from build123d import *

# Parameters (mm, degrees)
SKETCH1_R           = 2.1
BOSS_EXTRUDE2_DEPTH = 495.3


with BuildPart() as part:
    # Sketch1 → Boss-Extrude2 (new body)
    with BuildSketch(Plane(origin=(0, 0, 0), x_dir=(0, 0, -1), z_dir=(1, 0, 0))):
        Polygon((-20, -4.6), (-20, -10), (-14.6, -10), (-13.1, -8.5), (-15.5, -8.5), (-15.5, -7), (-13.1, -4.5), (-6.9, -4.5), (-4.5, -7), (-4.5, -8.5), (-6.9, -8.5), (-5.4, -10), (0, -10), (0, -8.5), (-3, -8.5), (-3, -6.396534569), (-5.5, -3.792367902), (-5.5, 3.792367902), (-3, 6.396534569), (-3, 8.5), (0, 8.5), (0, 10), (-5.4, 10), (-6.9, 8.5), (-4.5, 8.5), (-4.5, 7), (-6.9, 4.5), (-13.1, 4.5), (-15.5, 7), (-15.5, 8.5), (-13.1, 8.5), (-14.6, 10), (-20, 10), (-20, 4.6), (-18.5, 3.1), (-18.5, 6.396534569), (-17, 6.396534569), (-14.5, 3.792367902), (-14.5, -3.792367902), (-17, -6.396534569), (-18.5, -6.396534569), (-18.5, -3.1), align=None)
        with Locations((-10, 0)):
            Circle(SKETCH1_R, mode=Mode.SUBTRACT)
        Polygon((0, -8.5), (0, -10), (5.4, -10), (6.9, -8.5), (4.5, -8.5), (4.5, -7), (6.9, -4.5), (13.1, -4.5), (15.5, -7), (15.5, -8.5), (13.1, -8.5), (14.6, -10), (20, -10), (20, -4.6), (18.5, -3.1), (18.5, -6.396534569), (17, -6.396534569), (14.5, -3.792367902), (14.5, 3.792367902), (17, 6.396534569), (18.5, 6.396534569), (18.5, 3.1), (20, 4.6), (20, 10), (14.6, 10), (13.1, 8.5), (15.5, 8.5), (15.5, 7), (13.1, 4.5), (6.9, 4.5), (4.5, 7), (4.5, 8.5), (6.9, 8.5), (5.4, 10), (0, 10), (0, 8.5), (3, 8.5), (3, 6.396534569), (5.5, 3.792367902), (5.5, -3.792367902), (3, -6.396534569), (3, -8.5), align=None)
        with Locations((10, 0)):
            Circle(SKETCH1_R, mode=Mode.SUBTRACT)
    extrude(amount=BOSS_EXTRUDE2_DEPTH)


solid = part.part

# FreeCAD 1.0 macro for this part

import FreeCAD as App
import Part
import Sketcher
Q = App.Units.Quantity

doc = App.newDocument("Part")
params = doc.addObject("Spreadsheet::Sheet", "Params")
for row, (alias, value) in enumerate([
    ("sketch1_diameter", "4.2 mm"),
    ("sketch1_height", "6 mm"),
    ("sketch1_width", "5.4 mm"),
    ("sketch1_width2", "1.5 mm"),
    ("sketch1_height2", "2.4 mm"),
    ("pad1_length", "495.3 mm"),
], start=1):
    params.set(f"A{row}", alias)
    params.set(f"B{row}", "=" + value)
    params.setAlias(f"B{row}", alias)

body = doc.addObject("PartDesign::Body", "Body")

sketch1 = doc.addObject("Sketcher::SketchObject", "Sketch")
body.addObject(sketch1)
sketch1.AttachmentSupport = (doc.YZ_Plane, [""])
sketch1.MapMode = "FlatFace"
sketch1.addGeometry([
    Part.LineSegment(App.Vector(-4.6, 20, 0), App.Vector(-10, 20, 0)),
    Part.LineSegment(App.Vector(-10, 20, 0), App.Vector(-10, 14.6, 0)),
    Part.LineSegment(App.Vector(-10, 14.6, 0), App.Vector(-8.5, 13.1, 0)),
    Part.LineSegment(App.Vector(-8.5, 13.1, 0), App.Vector(-8.5, 15.5, 0)),
    Part.LineSegment(App.Vector(-8.5, 15.5, 0), App.Vector(-7, 15.5, 0)),
    Part.LineSegment(App.Vector(-7, 15.5, 0), App.Vector(-4.5, 13.1, 0)),
    Part.LineSegment(App.Vector(-4.5, 13.1, 0), App.Vector(-4.5, 6.9, 0)),
    Part.LineSegment(App.Vector(-4.5, 6.9, 0), App.Vector(-7, 4.5, 0)),
    Part.LineSegment(App.Vector(-7, 4.5, 0), App.Vector(-8.5, 4.5, 0)),
    Part.LineSegment(App.Vector(-8.5, 4.5, 0), App.Vector(-8.5, 6.9, 0)),
    Part.LineSegment(App.Vector(-8.5, 6.9, 0), App.Vector(-10, 5.4, 0)),
    Part.LineSegment(App.Vector(-10, 5.4, 0), App.Vector(-10, -5.4, 0)),
    Part.LineSegment(App.Vector(-10, -5.4, 0), App.Vector(-8.5, -6.9, 0)),
    Part.LineSegment(App.Vector(-8.5, -6.9, 0), App.Vector(-8.5, -4.5, 0)),
    Part.LineSegment(App.Vector(-8.5, -4.5, 0), App.Vector(-7, -4.5, 0)),
    Part.LineSegment(App.Vector(-7, -4.5, 0), App.Vector(-4.5, -6.9, 0)),
    Part.LineSegment(App.Vector(-4.5, -6.9, 0), App.Vector(-4.5, -13.1, 0)),
    Part.LineSegment(App.Vector(-4.5, -13.1, 0), App.Vector(-7, -15.5, 0)),
    Part.LineSegment(App.Vector(-7, -15.5, 0), App.Vector(-8.5, -15.5, 0)),
    Part.LineSegment(App.Vector(-8.5, -15.5, 0), App.Vector(-8.5, -13.1, 0)),
    Part.LineSegment(App.Vector(-8.5, -13.1, 0), App.Vector(-10, -14.6, 0)),
    Part.LineSegment(App.Vector(-10, -14.6, 0), App.Vector(-10, -20, 0)),
    Part.LineSegment(App.Vector(-10, -20, 0), App.Vector(-4.6, -20, 0)),
    Part.LineSegment(App.Vector(-4.6, -20, 0), App.Vector(-3.1, -18.5, 0)),
    Part.LineSegment(App.Vector(-3.1, -18.5, 0), App.Vector(-6.396535, -18.5, 0)),
    Part.LineSegment(App.Vector(-6.396535, -18.5, 0), App.Vector(-6.396535, -17, 0)),
    Part.LineSegment(App.Vector(-6.396535, -17, 0), App.Vector(-3.792368, -14.5, 0)),
    Part.LineSegment(App.Vector(-3.792368, -14.5, 0), App.Vector(3.792368, -14.5, 0)),
    Part.LineSegment(App.Vector(3.792368, -14.5, 0), App.Vector(6.396535, -17, 0)),
    Part.LineSegment(App.Vector(6.396535, -17, 0), App.Vector(6.396535, -18.5, 0)),
    Part.LineSegment(App.Vector(6.396535, -18.5, 0), App.Vector(3.1, -18.5, 0)),
    Part.LineSegment(App.Vector(3.1, -18.5, 0), App.Vector(4.6, -20, 0)),
    Part.LineSegment(App.Vector(4.6, -20, 0), App.Vector(10, -20, 0)),
    Part.LineSegment(App.Vector(10, -20, 0), App.Vector(10, -14.6, 0)),
    Part.LineSegment(App.Vector(10, -14.6, 0), App.Vector(8.5, -13.1, 0)),
    Part.LineSegment(App.Vector(8.5, -13.1, 0), App.Vector(8.5, -15.5, 0)),
    Part.LineSegment(App.Vector(8.5, -15.5, 0), App.Vector(7, -15.5, 0)),
    Part.LineSegment(App.Vector(7, -15.5, 0), App.Vector(4.5, -13.1, 0)),
    Part.LineSegment(App.Vector(4.5, -13.1, 0), App.Vector(4.5, -6.9, 0)),
    Part.LineSegment(App.Vector(4.5, -6.9, 0), App.Vector(7, -4.5, 0)),
    Part.LineSegment(App.Vector(7, -4.5, 0), App.Vector(8.5, -4.5, 0)),
    Part.LineSegment(App.Vector(8.5, -4.5, 0), App.Vector(8.5, -6.9, 0)),
    Part.LineSegment(App.Vector(8.5, -6.9, 0), App.Vector(10, -5.4, 0)),
    Part.LineSegment(App.Vector(10, -5.4, 0), App.Vector(10, 5.4, 0)),
    Part.LineSegment(App.Vector(10, 5.4, 0), App.Vector(8.5, 6.9, 0)),
    Part.LineSegment(App.Vector(8.5, 6.9, 0), App.Vector(8.5, 4.5, 0)),
    Part.LineSegment(App.Vector(8.5, 4.5, 0), App.Vector(7, 4.5, 0)),
    Part.LineSegment(App.Vector(7, 4.5, 0), App.Vector(4.5, 6.9, 0)),
    Part.LineSegment(App.Vector(4.5, 6.9, 0), App.Vector(4.5, 13.1, 0)),
    Part.LineSegment(App.Vector(4.5, 13.1, 0), App.Vector(7, 15.5, 0)),
    Part.LineSegment(App.Vector(7, 15.5, 0), App.Vector(8.5, 15.5, 0)),
    Part.LineSegment(App.Vector(8.5, 15.5, 0), App.Vector(8.5, 13.1, 0)),
    Part.LineSegment(App.Vector(8.5, 13.1, 0), App.Vector(10, 14.6, 0)),
    Part.LineSegment(App.Vector(10, 14.6, 0), App.Vector(10, 20, 0)),
    Part.LineSegment(App.Vector(10, 20, 0), App.Vector(4.6, 20, 0)),
    Part.LineSegment(App.Vector(4.6, 20, 0), App.Vector(3.1, 18.5, 0)),
    Part.LineSegment(App.Vector(3.1, 18.5, 0), App.Vector(6.396535, 18.5, 0)),
    Part.LineSegment(App.Vector(6.396535, 18.5, 0), App.Vector(6.396535, 17, 0)),
    Part.LineSegment(App.Vector(6.396535, 17, 0), App.Vector(3.792368, 14.5, 0)),
    Part.LineSegment(App.Vector(3.792368, 14.5, 0), App.Vector(-3.792368, 14.5, 0)),
    Part.LineSegment(App.Vector(-3.792368, 14.5, 0), App.Vector(-6.396535, 17, 0)),
    Part.LineSegment(App.Vector(-6.396535, 17, 0), App.Vector(-6.396535, 18.5, 0)),
    Part.LineSegment(App.Vector(-6.396535, 18.5, 0), App.Vector(-3.1, 18.5, 0)),
    Part.LineSegment(App.Vector(-3.1, 18.5, 0), App.Vector(-4.6, 20, 0)),
    Part.Circle(App.Vector(0, 10, 0), App.Vector(0, 0, 1), 2.1),
    Part.LineSegment(App.Vector(-8.5, 3, 0), App.Vector(-6.396535, 3, 0)),
    Part.LineSegment(App.Vector(-6.396535, 3, 0), App.Vector(-3.792368, 5.5, 0)),
    Part.LineSegment(App.Vector(-3.792368, 5.5, 0), App.Vector(3.792368, 5.5, 0)),
    Part.LineSegment(App.Vector(3.792368, 5.5, 0), App.Vector(6.396535, 3, 0)),
    Part.LineSegment(App.Vector(6.396535, 3, 0), App.Vector(8.5, 3, 0)),
    Part.LineSegment(App.Vector(8.5, 3, 0), App.Vector(8.5, -3, 0)),
    Part.LineSegment(App.Vector(8.5, -3, 0), App.Vector(6.396535, -3, 0)),
    Part.LineSegment(App.Vector(6.396535, -3, 0), App.Vector(3.792368, -5.5, 0)),
    Part.LineSegment(App.Vector(3.792368, -5.5, 0), App.Vector(-3.792368, -5.5, 0)),
    Part.LineSegment(App.Vector(-3.792368, -5.5, 0), App.Vector(-6.396535, -3, 0)),
    Part.LineSegment(App.Vector(-6.396535, -3, 0), App.Vector(-8.5, -3, 0)),
    Part.LineSegment(App.Vector(-8.5, -3, 0), App.Vector(-8.5, 3, 0)),
    Part.Circle(App.Vector(0, -10, 0), App.Vector(0, 0, 1), 2.1),
], False)
sketch1.addConstraint([
    Sketcher.Constraint("Coincident", 0, 2, 1, 1),
    Sketcher.Constraint("Coincident", 1, 2, 2, 1),
    Sketcher.Constraint("Coincident", 2, 2, 3, 1),
    Sketcher.Constraint("Coincident", 3, 2, 4, 1),
    Sketcher.Constraint("Coincident", 4, 2, 5, 1),
    Sketcher.Constraint("Coincident", 5, 2, 6, 1),
    Sketcher.Constraint("Coincident", 6, 2, 7, 1),
    Sketcher.Constraint("Coincident", 7, 2, 8, 1),
    Sketcher.Constraint("Coincident", 8, 2, 9, 1),
    Sketcher.Constraint("Coincident", 9, 2, 10, 1),
    Sketcher.Constraint("Coincident", 10, 2, 11, 1),
    Sketcher.Constraint("Coincident", 11, 2, 12, 1),
    Sketcher.Constraint("Coincident", 12, 2, 13, 1),
    Sketcher.Constraint("Coincident", 13, 2, 14, 1),
    Sketcher.Constraint("Coincident", 14, 2, 15, 1),
    Sketcher.Constraint("Coincident", 15, 2, 16, 1),
    Sketcher.Constraint("Coincident", 16, 2, 17, 1),
    Sketcher.Constraint("Coincident", 17, 2, 18, 1),
    Sketcher.Constraint("Coincident", 18, 2, 19, 1),
    Sketcher.Constraint("Coincident", 19, 2, 20, 1),
    Sketcher.Constraint("Coincident", 20, 2, 21, 1),
    Sketcher.Constraint("Coincident", 21, 2, 22, 1),
    Sketcher.Constraint("Coincident", 22, 2, 23, 1),
    Sketcher.Constraint("Coincident", 23, 2, 24, 1),
    Sketcher.Constraint("Coincident", 24, 2, 25, 1),
    Sketcher.Constraint("Coincident", 25, 2, 26, 1),
    Sketcher.Constraint("Coincident", 26, 2, 27, 1),
    Sketcher.Constraint("Coincident", 27, 2, 28, 1),
    Sketcher.Constraint("Coincident", 28, 2, 29, 1),
    Sketcher.Constraint("Coincident", 29, 2, 30, 1),
    Sketcher.Constraint("Coincident", 30, 2, 31, 1),
    Sketcher.Constraint("Coincident", 31, 2, 32, 1),
    Sketcher.Constraint("Coincident", 32, 2, 33, 1),
    Sketcher.Constraint("Coincident", 33, 2, 34, 1),
    Sketcher.Constraint("Coincident", 34, 2, 35, 1),
    Sketcher.Constraint("Coincident", 35, 2, 36, 1),
    Sketcher.Constraint("Coincident", 36, 2, 37, 1),
    Sketcher.Constraint("Coincident", 37, 2, 38, 1),
    Sketcher.Constraint("Coincident", 38, 2, 39, 1),
    Sketcher.Constraint("Coincident", 39, 2, 40, 1),
    Sketcher.Constraint("Coincident", 40, 2, 41, 1),
    Sketcher.Constraint("Coincident", 41, 2, 42, 1),
    Sketcher.Constraint("Coincident", 42, 2, 43, 1),
    Sketcher.Constraint("Coincident", 43, 2, 44, 1),
    Sketcher.Constraint("Coincident", 44, 2, 45, 1),
    Sketcher.Constraint("Coincident", 45, 2, 46, 1),
    Sketcher.Constraint("Coincident", 46, 2, 47, 1),
    Sketcher.Constraint("Coincident", 47, 2, 48, 1),
    Sketcher.Constraint("Coincident", 48, 2, 49, 1),
    Sketcher.Constraint("Coincident", 49, 2, 50, 1),
    Sketcher.Constraint("Coincident", 50, 2, 51, 1),
    Sketcher.Constraint("Coincident", 51, 2, 52, 1),
    Sketcher.Constraint("Coincident", 52, 2, 53, 1),
    Sketcher.Constraint("Coincident", 53, 2, 54, 1),
    Sketcher.Constraint("Coincident", 54, 2, 55, 1),
    Sketcher.Constraint("Coincident", 55, 2, 56, 1),
    Sketcher.Constraint("Coincident", 56, 2, 57, 1),
    Sketcher.Constraint("Coincident", 57, 2, 58, 1),
    Sketcher.Constraint("Coincident", 58, 2, 59, 1),
    Sketcher.Constraint("Coincident", 59, 2, 60, 1),
    Sketcher.Constraint("Coincident", 60, 2, 61, 1),
    Sketcher.Constraint("Coincident", 61, 2, 62, 1),
    Sketcher.Constraint("Coincident", 62, 2, 63, 1),
    Sketcher.Constraint("Coincident", 63, 2, 0, 1),
    Sketcher.Constraint("Coincident", 65, 2, 66, 1),
    Sketcher.Constraint("Coincident", 66, 2, 67, 1),
    Sketcher.Constraint("Coincident", 67, 2, 68, 1),
    Sketcher.Constraint("Coincident", 68, 2, 69, 1),
    Sketcher.Constraint("Coincident", 69, 2, 70, 1),
    Sketcher.Constraint("Coincident", 70, 2, 71, 1),
    Sketcher.Constraint("Coincident", 71, 2, 72, 1),
    Sketcher.Constraint("Coincident", 72, 2, 73, 1),
    Sketcher.Constraint("Coincident", 73, 2, 74, 1),
    Sketcher.Constraint("Coincident", 74, 2, 75, 1),
    Sketcher.Constraint("Coincident", 75, 2, 76, 1),
    Sketcher.Constraint("Coincident", 76, 2, 65, 1),
    Sketcher.Constraint("Horizontal", 0),
    Sketcher.Constraint("Vertical", 1),
    Sketcher.Constraint("Vertical", 3),
    Sketcher.Constraint("Horizontal", 4),
    Sketcher.Constraint("Vertical", 6),
    Sketcher.Constraint("Horizontal", 8),
    Sketcher.Constraint("Vertical", 9),
    Sketcher.Constraint("Vertical", 11),
    Sketcher.Constraint("Vertical", 13),
    Sketcher.Constraint("Horizontal", 14),
    Sketcher.Constraint("Vertical", 16),
    Sketcher.Constraint("Horizontal", 18),
    Sketcher.Constraint("Vertical", 19),
    Sketcher.Constraint("Vertical", 21),
    Sketcher.Constraint("Horizontal", 22),
    Sketcher.Constraint("Horizontal", 24),
    Sketcher.Constraint("Vertical", 25),
    Sketcher.Constraint("Horizontal", 27),
    Sketcher.Constraint("Vertical", 29),
    Sketcher.Constraint("Horizontal", 30),
    Sketcher.Constraint("Horizontal", 32),
    Sketcher.Constraint("Vertical", 33),
    Sketcher.Constraint("Vertical", 35),
    Sketcher.Constraint("Horizontal", 36),
    Sketcher.Constraint("Vertical", 38),
    Sketcher.Constraint("Horizontal", 40),
    Sketcher.Constraint("Vertical", 41),
    Sketcher.Constraint("Vertical", 43),
    Sketcher.Constraint("Vertical", 45),
    Sketcher.Constraint("Horizontal", 46),
    Sketcher.Constraint("Vertical", 48),
    Sketcher.Constraint("Horizontal", 50),
    Sketcher.Constraint("Vertical", 51),
    Sketcher.Constraint("Vertical", 53),
    Sketcher.Constraint("Horizontal", 54),
    Sketcher.Constraint("Horizontal", 56),
    Sketcher.Constraint("Vertical", 57),
    Sketcher.Constraint("Horizontal", 59),
    Sketcher.Constraint("Vertical", 61),
    Sketcher.Constraint("Horizontal", 62),
    Sketcher.Constraint("Horizontal", 65),
    Sketcher.Constraint("Horizontal", 67),
    Sketcher.Constraint("Horizontal", 69),
    Sketcher.Constraint("Vertical", 70),
    Sketcher.Constraint("Horizontal", 71),
    Sketcher.Constraint("Horizontal", 73),
    Sketcher.Constraint("Horizontal", 75),
    Sketcher.Constraint("Vertical", 76),
    Sketcher.Constraint("Equal", 64, 77),
    Sketcher.Constraint("Symmetric", 64, 3, 77, 3, -1, 1),
    Sketcher.Constraint("Symmetric", 0, 2, 32, 2, -1, 1),
    Sketcher.Constraint("Symmetric", 2, 2, 34, 2, -1, 1),
    Sketcher.Constraint("Symmetric", 4, 2, 36, 2, -1, 1),
    Sketcher.Constraint("Symmetric", 5, 2, 37, 2, -1, 1),
    Sketcher.Constraint("Symmetric", 7, 2, 39, 2, -1, 1),
    Sketcher.Constraint("Symmetric", 9, 2, 41, 2, -1, 1),
    Sketcher.Constraint("Symmetric", 10, 2, 42, 2, -1, 1),
    Sketcher.Constraint("Symmetric", 12, 2, 44, 2, -1, 1),
    Sketcher.Constraint("Symmetric", 14, 2, 46, 2, -1, 1),
    Sketcher.Constraint("Symmetric", 15, 2, 47, 2, -1, 1),
    Sketcher.Constraint("Symmetric", 17, 2, 49, 2, -1, 1),
    Sketcher.Constraint("Symmetric", 19, 2, 51, 2, -1, 1),
    Sketcher.Constraint("Symmetric", 20, 2, 52, 2, -1, 1),
    Sketcher.Constraint("Symmetric", 22, 2, 54, 2, -1, 1),
    Sketcher.Constraint("Symmetric", 23, 2, 55, 2, -1, 1),
    Sketcher.Constraint("Symmetric", 25, 2, 57, 2, -1, 1),
    Sketcher.Constraint("Symmetric", 26, 2, 58, 2, -1, 1),
    Sketcher.Constraint("Symmetric", 28, 2, 60, 2, -1, 1),
    Sketcher.Constraint("Symmetric", 30, 2, 62, 2, -1, 1),
    Sketcher.Constraint("Symmetric", 65, 2, 71, 2, -1, 1),
    Sketcher.Constraint("Symmetric", 66, 2, 72, 2, -1, 1),
    Sketcher.Constraint("Symmetric", 68, 2, 74, 2, -1, 1),
    Sketcher.Constraint("Symmetric", 25, 2, 28, 2, -2),
    Sketcher.Constraint("Symmetric", 23, 2, 30, 2, -2),
    Sketcher.Constraint("Symmetric", 22, 2, 31, 2, -2),
    Sketcher.Constraint("Symmetric", 20, 2, 33, 2, -2),
    Sketcher.Constraint("Symmetric", 19, 2, 34, 2, -2),
    Sketcher.Constraint("Symmetric", 17, 2, 36, 2, -2),
    Sketcher.Constraint("Symmetric", 16, 2, 37, 2, -2),
    Sketcher.Constraint("Symmetric", 14, 2, 39, 2, -2),
    Sketcher.Constraint("Symmetric", 12, 2, 41, 2, -2),
    Sketcher.Constraint("Symmetric", 65, 2, 68, 2, -2),
    Sketcher.Constraint("PointOnObject", 64, 3, -2),
    Sketcher.Constraint("Perpendicular", 2, 10),
    Sketcher.Constraint("Perpendicular", 10, 12),
    Sketcher.Constraint("Parallel", 5, 15),
    Sketcher.Constraint("Parallel", 7, 17),
    Sketcher.Constraint("Perpendicular", 12, 20),
    Sketcher.Constraint("Parallel", 20, 23),
    Sketcher.Constraint("Parallel", 17, 26),
    Sketcher.Constraint("Parallel", 15, 28),
    Sketcher.Constraint("Perpendicular", 23, 31),
    Sketcher.Constraint("Parallel", 26, 39),
    Sketcher.Constraint("Perpendicular", 42, 44),
    Sketcher.Constraint("Parallel", 39, 49),
    Sketcher.Constraint("Parallel", 47, 60),
    Sketcher.Constraint("Perpendicular", 55, 63),
    Sketcher.Constraint("Parallel", 58, 66),
    Sketcher.Constraint("Parallel", 60, 68),
    Sketcher.Constraint("Parallel", 68, 74),
    Sketcher.Constraint("Horizontal", 2, 2, 5, 2),
    Sketcher.Constraint("Horizontal", 6, 2, 9, 2),
    Sketcher.Constraint("Vertical", 4, 2, 7, 2),
    Sketcher.Constraint("Vertical", 3, 2, 8, 2),
    Sketcher.Constraint("Vertical", 1, 2, 10, 2),
    Sketcher.Constraint("Vertical", 61, 2, 65, 2),
    Sketcher.Constraint("Vertical", 59, 2, 66, 2),
    Sketcher.Constraint("Vertical", 51, 2, 69, 2),
    Sketcher.Constraint("Vertical", 19, 2, 75, 2),
    Sketcher.Constraint("Equal", 54, 1),
    Sketcher.Constraint("Equal", 50, 25),
    Sketcher.Constraint("Equal", 20, 23),
    Sketcher.Constraint("Diameter", 64, Q("4.2 mm")),
    Sketcher.Constraint("DistanceY", 70, 2, 70, 1, Q("6 mm")),
    Sketcher.Constraint("DistanceX", 0, 2, 0, 1, Q("5.4 mm")),
    Sketcher.Constraint("DistanceX", 4, 1, 4, 2, Q("1.5 mm")),
    Sketcher.Constraint("DistanceY", 3, 1, 3, 2, Q("2.4 mm")),
    Sketcher.Constraint("DistanceY", 6, 2, 6, 1, Q("6.2 mm")),
    Sketcher.Constraint("DistanceY", 11, 2, 11, 1, Q("10.8 mm")),
    Sketcher.Constraint("DistanceY", -1, 1, 64, 3, Q("10 mm")),
    Sketcher.Constraint("DistanceX", 0, 2, -1, 1, Q("10 mm")),
    Sketcher.Constraint("DistanceY", -1, 1, 0, 2, Q("20 mm")),
    Sketcher.Constraint("DistanceX", 5, 2, -1, 1, Q("4.5 mm")),
    Sketcher.Constraint("DistanceY", 26, 2, -1, 1, Q("14.5 mm")),
    Sketcher.Constraint("DistanceX", 24, 2, 24, 1, Q("3.296535 mm")),
])
sketch1.setExpression("Constraints[188]", "Params.sketch1_diameter")
sketch1.setExpression("Constraints[189]", "Params.sketch1_height")
sketch1.setExpression("Constraints[190]", "Params.sketch1_width")
sketch1.setExpression("Constraints[191]", "Params.sketch1_width2")
sketch1.setExpression("Constraints[192]", "Params.sketch1_height2")
pad1 = doc.addObject("PartDesign::Pad", "Pad")
body.addObject(pad1)
pad1.Profile = sketch1
pad1.setExpression("Length", "Params.pad1_length")

doc.recompute()
